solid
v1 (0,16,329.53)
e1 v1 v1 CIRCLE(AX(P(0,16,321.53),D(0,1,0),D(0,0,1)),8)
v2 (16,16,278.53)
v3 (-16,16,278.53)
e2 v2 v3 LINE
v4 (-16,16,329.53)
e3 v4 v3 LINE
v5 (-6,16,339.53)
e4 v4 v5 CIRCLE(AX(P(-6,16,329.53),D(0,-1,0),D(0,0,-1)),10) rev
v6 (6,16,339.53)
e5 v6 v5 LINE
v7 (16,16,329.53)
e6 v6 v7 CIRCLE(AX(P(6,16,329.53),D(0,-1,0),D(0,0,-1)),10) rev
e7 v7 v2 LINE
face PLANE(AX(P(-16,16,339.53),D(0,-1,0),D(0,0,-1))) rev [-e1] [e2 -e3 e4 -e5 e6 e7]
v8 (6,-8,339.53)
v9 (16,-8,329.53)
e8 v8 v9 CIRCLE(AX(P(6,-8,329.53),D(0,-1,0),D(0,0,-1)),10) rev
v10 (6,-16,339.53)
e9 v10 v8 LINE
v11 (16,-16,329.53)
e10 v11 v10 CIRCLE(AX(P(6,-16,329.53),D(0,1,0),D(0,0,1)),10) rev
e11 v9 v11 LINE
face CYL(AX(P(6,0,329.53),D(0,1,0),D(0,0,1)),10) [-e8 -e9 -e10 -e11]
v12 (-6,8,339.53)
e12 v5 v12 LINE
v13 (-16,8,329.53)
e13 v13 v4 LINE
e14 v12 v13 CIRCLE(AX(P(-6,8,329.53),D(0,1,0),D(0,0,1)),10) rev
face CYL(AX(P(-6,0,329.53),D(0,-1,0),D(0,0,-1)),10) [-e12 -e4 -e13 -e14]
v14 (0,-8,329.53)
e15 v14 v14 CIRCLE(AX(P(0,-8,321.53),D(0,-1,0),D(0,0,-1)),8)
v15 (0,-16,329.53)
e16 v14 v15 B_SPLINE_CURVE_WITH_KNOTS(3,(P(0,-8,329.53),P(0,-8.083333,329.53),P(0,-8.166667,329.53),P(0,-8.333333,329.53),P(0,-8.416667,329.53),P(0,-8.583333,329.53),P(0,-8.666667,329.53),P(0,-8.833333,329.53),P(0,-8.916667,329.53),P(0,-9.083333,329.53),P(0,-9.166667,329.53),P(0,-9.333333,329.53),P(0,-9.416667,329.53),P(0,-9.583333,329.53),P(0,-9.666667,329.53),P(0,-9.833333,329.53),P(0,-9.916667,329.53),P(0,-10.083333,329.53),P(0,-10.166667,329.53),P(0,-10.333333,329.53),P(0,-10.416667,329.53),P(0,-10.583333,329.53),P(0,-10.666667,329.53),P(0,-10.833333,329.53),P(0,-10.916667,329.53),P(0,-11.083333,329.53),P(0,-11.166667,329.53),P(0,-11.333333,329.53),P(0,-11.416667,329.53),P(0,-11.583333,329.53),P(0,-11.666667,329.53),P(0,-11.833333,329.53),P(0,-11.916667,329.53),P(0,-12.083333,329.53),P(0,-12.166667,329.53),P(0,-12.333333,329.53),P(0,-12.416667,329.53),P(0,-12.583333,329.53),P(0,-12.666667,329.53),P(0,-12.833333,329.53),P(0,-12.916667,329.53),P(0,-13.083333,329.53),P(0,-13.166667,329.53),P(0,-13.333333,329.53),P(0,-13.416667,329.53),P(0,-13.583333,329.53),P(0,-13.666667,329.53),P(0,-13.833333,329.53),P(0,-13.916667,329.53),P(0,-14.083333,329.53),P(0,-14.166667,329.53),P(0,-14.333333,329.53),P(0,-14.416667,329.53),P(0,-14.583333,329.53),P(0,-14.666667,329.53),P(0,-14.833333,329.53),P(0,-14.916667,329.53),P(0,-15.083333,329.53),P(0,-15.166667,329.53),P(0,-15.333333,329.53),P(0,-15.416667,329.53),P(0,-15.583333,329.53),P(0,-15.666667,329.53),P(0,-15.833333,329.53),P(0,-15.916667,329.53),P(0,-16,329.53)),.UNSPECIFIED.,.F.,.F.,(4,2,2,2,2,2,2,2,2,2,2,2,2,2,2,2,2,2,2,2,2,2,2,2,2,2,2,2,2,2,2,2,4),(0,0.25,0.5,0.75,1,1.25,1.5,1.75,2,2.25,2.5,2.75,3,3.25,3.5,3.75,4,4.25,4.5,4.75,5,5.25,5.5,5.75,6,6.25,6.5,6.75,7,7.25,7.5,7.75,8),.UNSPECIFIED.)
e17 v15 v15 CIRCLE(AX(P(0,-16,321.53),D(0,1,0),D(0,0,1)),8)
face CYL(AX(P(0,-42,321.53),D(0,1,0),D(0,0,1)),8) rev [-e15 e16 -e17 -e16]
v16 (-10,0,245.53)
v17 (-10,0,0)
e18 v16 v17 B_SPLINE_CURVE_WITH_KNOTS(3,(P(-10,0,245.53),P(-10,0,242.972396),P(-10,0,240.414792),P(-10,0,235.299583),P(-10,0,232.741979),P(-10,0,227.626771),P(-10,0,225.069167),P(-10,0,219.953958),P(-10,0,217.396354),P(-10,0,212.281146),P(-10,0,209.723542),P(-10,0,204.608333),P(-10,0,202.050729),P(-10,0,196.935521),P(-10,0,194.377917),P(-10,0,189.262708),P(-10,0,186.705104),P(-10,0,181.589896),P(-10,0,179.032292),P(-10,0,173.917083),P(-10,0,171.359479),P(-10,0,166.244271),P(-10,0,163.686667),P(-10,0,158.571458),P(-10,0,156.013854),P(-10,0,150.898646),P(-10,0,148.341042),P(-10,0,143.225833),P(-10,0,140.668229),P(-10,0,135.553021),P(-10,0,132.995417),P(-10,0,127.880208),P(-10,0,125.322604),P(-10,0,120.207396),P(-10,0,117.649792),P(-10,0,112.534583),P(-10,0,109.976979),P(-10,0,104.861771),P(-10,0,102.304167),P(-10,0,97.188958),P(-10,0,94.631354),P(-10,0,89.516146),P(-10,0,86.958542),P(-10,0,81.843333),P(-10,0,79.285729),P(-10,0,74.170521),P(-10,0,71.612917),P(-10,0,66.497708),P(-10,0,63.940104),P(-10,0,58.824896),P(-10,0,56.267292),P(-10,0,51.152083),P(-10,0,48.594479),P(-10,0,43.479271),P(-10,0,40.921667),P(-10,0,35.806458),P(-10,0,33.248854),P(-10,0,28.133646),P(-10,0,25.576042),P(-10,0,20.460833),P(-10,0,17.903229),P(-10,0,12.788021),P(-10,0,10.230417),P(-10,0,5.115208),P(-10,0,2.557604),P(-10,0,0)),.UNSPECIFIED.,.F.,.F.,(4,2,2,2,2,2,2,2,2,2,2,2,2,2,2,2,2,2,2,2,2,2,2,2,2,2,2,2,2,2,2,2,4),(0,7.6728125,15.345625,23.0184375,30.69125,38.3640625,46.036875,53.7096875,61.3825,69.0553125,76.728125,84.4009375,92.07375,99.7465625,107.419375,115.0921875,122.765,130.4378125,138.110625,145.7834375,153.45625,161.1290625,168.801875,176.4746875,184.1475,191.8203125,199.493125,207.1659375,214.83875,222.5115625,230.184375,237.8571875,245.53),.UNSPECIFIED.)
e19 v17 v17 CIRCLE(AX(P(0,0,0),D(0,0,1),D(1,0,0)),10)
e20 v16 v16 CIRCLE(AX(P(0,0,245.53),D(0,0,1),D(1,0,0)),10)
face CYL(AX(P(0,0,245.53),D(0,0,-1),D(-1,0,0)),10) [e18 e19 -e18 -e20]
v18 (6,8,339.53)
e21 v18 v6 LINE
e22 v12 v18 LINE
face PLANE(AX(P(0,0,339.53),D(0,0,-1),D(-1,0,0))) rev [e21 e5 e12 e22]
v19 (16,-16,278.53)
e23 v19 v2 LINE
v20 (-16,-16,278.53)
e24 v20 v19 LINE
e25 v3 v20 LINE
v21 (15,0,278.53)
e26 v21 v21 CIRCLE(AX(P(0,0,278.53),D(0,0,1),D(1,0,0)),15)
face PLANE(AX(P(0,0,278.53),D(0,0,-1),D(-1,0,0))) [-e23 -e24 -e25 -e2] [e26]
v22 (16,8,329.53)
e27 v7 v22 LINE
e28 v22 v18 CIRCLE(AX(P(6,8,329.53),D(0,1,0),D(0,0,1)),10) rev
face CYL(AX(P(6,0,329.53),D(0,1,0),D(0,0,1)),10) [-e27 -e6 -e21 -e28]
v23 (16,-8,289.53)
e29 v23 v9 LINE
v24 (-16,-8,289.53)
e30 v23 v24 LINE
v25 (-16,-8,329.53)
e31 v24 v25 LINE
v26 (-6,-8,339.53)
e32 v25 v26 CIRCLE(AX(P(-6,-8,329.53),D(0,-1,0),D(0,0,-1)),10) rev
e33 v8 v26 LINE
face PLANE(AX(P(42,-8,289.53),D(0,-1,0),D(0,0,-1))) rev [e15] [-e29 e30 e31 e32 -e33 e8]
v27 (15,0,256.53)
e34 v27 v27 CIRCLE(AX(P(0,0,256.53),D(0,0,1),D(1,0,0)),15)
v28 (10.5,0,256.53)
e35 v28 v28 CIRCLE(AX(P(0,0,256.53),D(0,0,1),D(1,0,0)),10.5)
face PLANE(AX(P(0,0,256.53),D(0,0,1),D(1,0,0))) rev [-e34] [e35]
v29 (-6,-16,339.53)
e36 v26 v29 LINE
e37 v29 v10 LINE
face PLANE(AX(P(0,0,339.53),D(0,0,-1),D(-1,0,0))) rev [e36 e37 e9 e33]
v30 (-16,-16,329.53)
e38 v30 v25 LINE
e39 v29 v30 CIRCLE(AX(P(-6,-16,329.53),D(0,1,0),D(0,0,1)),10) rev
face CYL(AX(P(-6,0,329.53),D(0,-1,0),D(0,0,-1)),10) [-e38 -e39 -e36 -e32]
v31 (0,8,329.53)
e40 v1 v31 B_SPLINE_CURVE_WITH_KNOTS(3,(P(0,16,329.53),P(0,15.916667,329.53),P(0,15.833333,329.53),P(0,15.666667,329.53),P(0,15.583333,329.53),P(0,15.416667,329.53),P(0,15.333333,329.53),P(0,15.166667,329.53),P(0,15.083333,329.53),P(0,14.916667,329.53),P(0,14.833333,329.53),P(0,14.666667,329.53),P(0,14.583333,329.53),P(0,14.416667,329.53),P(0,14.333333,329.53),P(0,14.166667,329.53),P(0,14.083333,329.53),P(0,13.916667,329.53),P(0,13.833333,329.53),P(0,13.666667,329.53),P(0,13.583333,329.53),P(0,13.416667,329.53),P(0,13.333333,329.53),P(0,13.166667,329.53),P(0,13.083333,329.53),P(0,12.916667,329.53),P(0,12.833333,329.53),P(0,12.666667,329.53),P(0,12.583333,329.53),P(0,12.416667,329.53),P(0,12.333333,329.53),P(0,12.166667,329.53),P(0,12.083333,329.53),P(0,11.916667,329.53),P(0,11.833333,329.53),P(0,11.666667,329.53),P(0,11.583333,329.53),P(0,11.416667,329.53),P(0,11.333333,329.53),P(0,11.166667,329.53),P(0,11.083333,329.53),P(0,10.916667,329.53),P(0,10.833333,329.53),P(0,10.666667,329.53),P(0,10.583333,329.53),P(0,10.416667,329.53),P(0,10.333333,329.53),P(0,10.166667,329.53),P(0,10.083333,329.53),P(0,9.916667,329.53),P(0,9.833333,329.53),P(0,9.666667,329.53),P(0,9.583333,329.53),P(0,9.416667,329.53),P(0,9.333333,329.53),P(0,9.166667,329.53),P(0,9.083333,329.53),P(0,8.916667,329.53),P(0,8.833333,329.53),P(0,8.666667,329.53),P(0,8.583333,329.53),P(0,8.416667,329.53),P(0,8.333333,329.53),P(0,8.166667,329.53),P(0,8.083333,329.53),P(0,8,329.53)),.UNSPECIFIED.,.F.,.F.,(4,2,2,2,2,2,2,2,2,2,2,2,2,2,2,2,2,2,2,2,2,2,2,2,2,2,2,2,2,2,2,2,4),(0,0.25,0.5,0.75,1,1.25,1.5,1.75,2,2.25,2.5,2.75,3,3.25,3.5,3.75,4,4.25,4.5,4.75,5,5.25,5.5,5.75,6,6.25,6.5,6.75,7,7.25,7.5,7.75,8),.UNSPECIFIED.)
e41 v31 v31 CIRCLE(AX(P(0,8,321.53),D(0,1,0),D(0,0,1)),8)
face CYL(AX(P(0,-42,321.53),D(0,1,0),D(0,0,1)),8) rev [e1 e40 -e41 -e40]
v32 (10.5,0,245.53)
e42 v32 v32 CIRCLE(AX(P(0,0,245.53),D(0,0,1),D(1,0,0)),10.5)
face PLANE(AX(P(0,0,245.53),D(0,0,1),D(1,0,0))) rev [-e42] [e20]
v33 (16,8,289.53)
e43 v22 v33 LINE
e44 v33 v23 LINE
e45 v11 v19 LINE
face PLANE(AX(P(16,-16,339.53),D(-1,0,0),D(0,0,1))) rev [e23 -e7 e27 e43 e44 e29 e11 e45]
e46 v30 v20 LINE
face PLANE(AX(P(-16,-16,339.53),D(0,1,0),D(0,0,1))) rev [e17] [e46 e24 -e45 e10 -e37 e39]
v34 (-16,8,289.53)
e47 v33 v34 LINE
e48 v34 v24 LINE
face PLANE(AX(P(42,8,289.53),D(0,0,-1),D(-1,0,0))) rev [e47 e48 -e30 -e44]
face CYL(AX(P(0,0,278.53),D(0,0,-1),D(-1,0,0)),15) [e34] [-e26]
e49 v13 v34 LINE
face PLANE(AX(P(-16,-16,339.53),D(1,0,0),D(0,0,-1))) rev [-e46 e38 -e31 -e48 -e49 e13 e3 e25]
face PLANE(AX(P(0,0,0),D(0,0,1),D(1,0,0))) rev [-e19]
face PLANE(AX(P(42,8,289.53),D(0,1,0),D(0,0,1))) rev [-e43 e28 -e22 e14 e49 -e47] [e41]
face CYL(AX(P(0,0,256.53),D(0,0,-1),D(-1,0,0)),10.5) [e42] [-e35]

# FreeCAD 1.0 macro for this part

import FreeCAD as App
import Part
import Sketcher
from FreeCAD import Vector
Q = App.Units.Quantity


def edges_at(feature, points):
    """Names of the edges that pass closest to the given points."""
    edges = feature.Shape.Edges
    near = lambda p: min(range(len(edges)), key=lambda i: edges[i].distToShape(Part.Vertex(*p))[0])
    return sorted({f"Edge{near(p) + 1}" for p in points})

doc = App.newDocument("Part")
body = doc.addObject("PartDesign::Body", "Body")

sketch1 = body.newObject("Sketcher::SketchObject", "Sketch")
sketch1.AttachmentSupport = (doc.getObject("XY_Plane"), [""])
sketch1.MapMode = "FlatFace"
sketch1.addGeometry(Part.Circle(Vector(0, 0, 0), Vector(0, 0, 1), 10), False)
sketch1.addConstraint([
    Sketcher.Constraint("Coincident", 0, 3, -1, 1),
    Sketcher.Constraint("Diameter", 0, Q("20 mm")),
])
pad1 = body.newObject("PartDesign::Pad", "Pad")
pad1.Profile = sketch1
pad1.Length = 245.53

sketch2 = body.newObject("Sketcher::SketchObject", "Sketch001")
sketch2.AttachmentSupport = (doc.getObject("XY_Plane"), [""])
sketch2.MapMode = "FlatFace"
sketch2.AttachmentOffset = App.Placement(Vector(0, 0, 245.53), App.Rotation())
sketch2.addGeometry(Part.Circle(Vector(0, 0, 0), Vector(0, 0, 1), 10), False)
sketch2.addConstraint([
    Sketcher.Constraint("Coincident", 0, 3, -1, 1),
    Sketcher.Constraint("Diameter", 0, Q("21 mm")),
])
pad2 = body.newObject("PartDesign::Pad", "Pad001")
pad2.Profile = sketch2
pad2.Length = 11

sketch3 = body.newObject("Sketcher::SketchObject", "Sketch002")
sketch3.AttachmentSupport = (doc.getObject("XY_Plane"), [""])
sketch3.MapMode = "FlatFace"
sketch3.AttachmentOffset = App.Placement(Vector(0, 0, 256.53), App.Rotation())
sketch3.addGeometry(Part.Circle(Vector(0, 0, 0), Vector(0, 0, 1), 15), False)
sketch3.addConstraint([
    Sketcher.Constraint("Coincident", 0, 3, -1, 1),
    Sketcher.Constraint("Diameter", 0, Q("30 mm")),
])
pad3 = body.newObject("PartDesign::Pad", "Pad002")
pad3.Profile = sketch3
pad3.Length = 22

sketch4 = body.newObject("Sketcher::SketchObject", "Sketch003")
sketch4.AttachmentSupport = (doc.getObject("XY_Plane"), [""])
sketch4.MapMode = "FlatFace"
sketch4.AttachmentOffset = App.Placement(Vector(0, 0, 278.53), App.Rotation())
sketch4.addGeometry([
    Part.LineSegment(Vector(-16, 16, 0), Vector(-16, -16, 0)),
    Part.LineSegment(Vector(-16, -16, 0), Vector(16, -16, 0)),
    Part.LineSegment(Vector(16, -16, 0), Vector(16, 16, 0)),
    Part.LineSegment(Vector(16, 16, 0), Vector(-16, 16, 0)),
], False)
sketch4.addConstraint([
    Sketcher.Constraint("Coincident", 0, 2, 1, 1),
    Sketcher.Constraint("Coincident", 1, 2, 2, 1),
    Sketcher.Constraint("Coincident", 2, 2, 3, 1),
    Sketcher.Constraint("Coincident", 3, 2, 0, 1),
    Sketcher.Constraint("Vertical", 0),
    Sketcher.Constraint("Horizontal", 1),
    Sketcher.Constraint("Vertical", 2),
    Sketcher.Constraint("Horizontal", 3),
    Sketcher.Constraint("Symmetric", 0, 2, 2, 2, -1, 1),
    Sketcher.Constraint("Equal", 3, 0),
    Sketcher.Constraint("DistanceX", 1, 1, 1, 2, Q("32 mm")),
])
pad4 = body.newObject("PartDesign::Pad", "Pad003")
pad4.Profile = sketch4
pad4.Length = 61

sketch5 = body.newObject("Sketcher::SketchObject", "Sketch004")
sketch5.AttachmentSupport = (doc.getObject("YZ_Plane"), [""])
sketch5.MapMode = "FlatFace"
sketch5.AttachmentOffset = App.Placement(Vector(0, 0, -16), App.Rotation())
sketch5.addGeometry([
    Part.LineSegment(Vector(8, 290, 0), Vector(-8, 290, 0)),
    Part.LineSegment(Vector(-8, 290, 0), Vector(-8, 340, 0)),
    Part.LineSegment(Vector(-8, 340, 0), Vector(8, 340, 0)),
    Part.LineSegment(Vector(8, 340, 0), Vector(8, 290, 0)),
], False)
sketch5.addConstraint([
    Sketcher.Constraint("Coincident", 0, 2, 1, 1),
    Sketcher.Constraint("Coincident", 1, 2, 2, 1),
    Sketcher.Constraint("Coincident", 2, 2, 3, 1),
    Sketcher.Constraint("Coincident", 3, 2, 0, 1),
    Sketcher.Constraint("Horizontal", 0),
    Sketcher.Constraint("Vertical", 1),
    Sketcher.Constraint("Horizontal", 2),
    Sketcher.Constraint("Vertical", 3),
    Sketcher.Constraint("DistanceX", 0, 2, 0, 1, Q("16 mm")),
    Sketcher.Constraint("DistanceY", 1, 1, 1, 2, Q("50 mm")),
    Sketcher.Constraint("DistanceX", 0, 2, -1, 1, Q("8 mm")),
    Sketcher.Constraint("DistanceY", -1, 1, 0, 2, Q("289.53 mm")),
])
pocket1 = body.newObject("PartDesign::Pocket", "Pocket")
pocket1.Profile = sketch5
pocket1.Length = 58
pocket1.Reversed = True

sketch6 = body.newObject("Sketcher::SketchObject", "Sketch005")
sketch6.AttachmentSupport = (doc.getObject("XZ_Plane"), [""])
sketch6.MapMode = "FlatFace"
sketch6.AttachmentOffset = App.Placement(Vector(0, 0, -16), App.Rotation())
sketch6.addGeometry(Part.Circle(Vector(0, 322, 0), Vector(0, 0, 1), 8), False)
sketch6.addConstraint([
    Sketcher.Constraint("PointOnObject", 0, 3, -2),
    Sketcher.Constraint("Diameter", 0, Q("16 mm")),
    Sketcher.Constraint("DistanceY", -1, 1, 0, 3, Q("321.53 mm")),
])
pocket2 = body.newObject("PartDesign::Pocket", "Pocket001")
pocket2.Profile = sketch6
pocket2.Length = 58
pocket2.Reversed = True
doc.recompute()

fillet = body.newObject("PartDesign::Fillet", "Fillet")
fillet.Base = (pocket2, edges_at(pocket2, [
    (16, -12, 339.53),
    (-16, 12, 339.53),
    (16, 12, 339.53),
    (-16, -12, 339.53),
]))
fillet.Radius = 10

doc.recompute()
